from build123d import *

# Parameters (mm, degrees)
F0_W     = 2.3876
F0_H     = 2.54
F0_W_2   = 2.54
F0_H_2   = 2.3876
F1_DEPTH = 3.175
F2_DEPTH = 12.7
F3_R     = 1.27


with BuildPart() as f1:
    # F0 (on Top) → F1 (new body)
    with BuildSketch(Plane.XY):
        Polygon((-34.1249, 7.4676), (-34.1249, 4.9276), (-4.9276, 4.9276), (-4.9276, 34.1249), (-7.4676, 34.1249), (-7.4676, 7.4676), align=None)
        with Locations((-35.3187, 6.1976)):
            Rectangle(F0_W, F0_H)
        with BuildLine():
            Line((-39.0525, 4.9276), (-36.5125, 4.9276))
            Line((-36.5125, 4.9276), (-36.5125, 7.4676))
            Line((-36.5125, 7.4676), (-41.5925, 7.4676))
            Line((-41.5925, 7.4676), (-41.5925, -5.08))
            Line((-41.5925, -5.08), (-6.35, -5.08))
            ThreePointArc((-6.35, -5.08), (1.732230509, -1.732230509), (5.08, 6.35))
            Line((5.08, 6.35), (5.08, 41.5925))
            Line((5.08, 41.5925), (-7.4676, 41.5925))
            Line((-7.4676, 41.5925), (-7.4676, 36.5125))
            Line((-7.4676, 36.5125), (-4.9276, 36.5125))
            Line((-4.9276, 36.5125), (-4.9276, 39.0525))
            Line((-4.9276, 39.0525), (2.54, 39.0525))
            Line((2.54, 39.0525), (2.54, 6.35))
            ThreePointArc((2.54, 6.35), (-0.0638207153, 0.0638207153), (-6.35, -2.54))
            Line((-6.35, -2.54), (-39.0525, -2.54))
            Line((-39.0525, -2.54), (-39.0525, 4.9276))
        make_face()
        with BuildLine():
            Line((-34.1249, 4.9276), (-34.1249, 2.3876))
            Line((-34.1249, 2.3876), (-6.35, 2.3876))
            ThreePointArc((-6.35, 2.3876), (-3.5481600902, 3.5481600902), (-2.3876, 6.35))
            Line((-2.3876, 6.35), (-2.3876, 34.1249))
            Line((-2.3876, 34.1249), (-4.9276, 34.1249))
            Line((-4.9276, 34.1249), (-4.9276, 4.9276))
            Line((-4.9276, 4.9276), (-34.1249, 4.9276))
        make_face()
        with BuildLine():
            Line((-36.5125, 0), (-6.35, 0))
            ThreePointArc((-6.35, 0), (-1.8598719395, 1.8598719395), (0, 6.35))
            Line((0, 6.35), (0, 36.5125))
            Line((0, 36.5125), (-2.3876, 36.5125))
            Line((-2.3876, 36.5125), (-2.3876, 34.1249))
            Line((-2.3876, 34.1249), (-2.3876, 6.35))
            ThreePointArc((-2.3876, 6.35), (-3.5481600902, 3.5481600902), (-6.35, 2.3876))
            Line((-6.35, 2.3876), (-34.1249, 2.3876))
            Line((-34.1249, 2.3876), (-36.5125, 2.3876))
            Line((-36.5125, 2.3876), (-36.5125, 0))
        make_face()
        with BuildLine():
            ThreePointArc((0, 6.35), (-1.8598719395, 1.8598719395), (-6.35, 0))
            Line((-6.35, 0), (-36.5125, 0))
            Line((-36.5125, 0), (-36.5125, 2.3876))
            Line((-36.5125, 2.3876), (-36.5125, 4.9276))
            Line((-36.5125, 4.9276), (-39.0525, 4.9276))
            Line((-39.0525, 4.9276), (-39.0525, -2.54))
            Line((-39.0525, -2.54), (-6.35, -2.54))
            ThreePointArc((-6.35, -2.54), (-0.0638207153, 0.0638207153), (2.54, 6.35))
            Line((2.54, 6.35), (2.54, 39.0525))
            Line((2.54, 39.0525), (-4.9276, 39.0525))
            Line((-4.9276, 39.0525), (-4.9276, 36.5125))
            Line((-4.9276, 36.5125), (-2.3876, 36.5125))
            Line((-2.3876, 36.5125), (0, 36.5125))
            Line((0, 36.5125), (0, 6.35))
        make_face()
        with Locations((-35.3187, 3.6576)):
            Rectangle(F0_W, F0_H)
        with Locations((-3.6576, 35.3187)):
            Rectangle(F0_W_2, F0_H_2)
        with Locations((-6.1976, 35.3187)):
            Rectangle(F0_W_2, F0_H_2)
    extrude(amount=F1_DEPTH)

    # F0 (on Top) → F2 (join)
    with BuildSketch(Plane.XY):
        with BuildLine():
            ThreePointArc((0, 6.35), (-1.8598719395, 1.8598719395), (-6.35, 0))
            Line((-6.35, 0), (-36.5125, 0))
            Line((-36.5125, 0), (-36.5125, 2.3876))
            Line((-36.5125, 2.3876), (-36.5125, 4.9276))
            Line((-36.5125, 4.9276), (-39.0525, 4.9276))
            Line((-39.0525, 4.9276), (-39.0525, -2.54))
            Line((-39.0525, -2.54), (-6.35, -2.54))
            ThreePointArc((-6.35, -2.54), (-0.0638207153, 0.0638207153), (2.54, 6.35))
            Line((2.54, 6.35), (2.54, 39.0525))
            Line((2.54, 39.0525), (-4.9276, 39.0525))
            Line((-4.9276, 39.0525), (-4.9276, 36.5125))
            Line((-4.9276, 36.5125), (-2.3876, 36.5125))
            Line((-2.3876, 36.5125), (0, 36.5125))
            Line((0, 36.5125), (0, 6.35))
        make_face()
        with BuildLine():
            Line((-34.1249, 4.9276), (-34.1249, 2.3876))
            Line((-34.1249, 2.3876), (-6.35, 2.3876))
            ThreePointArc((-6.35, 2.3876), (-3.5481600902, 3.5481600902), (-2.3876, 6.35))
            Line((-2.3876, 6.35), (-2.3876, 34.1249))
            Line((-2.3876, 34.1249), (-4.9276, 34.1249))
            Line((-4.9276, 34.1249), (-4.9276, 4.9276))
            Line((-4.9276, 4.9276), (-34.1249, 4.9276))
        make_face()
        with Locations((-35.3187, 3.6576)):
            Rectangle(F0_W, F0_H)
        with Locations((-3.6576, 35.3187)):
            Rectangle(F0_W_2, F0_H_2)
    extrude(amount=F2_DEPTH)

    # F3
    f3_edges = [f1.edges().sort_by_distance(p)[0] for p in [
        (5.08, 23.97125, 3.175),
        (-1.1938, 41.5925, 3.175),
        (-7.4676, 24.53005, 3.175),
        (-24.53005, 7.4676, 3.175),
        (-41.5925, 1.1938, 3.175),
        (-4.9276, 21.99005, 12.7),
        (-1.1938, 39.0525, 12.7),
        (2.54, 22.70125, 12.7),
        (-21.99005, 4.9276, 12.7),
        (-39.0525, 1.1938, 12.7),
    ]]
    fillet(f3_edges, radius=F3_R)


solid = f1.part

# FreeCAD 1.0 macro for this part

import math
import FreeCAD as App
import Part
import Sketcher

V = App.Vector
Q = App.Units.Quantity


def edges_at(feature, points):
    """Names of the edges that pass closest to the given points."""
    edges = feature.Shape.Edges
    near = lambda p: min(range(len(edges)), key=lambda i: edges[i].distToShape(Part.Vertex(*p))[0])
    return sorted({f"Edge{near(p) + 1}" for p in points})

doc = App.newDocument("Part")
body = doc.addObject("PartDesign::Body", "Body")

# Sketch on XY plane
sketch1 = body.newObject("Sketcher::SketchObject", "Sketch")
sketch1.AttachmentSupport = (doc.getObject("XY_Plane"), [""])
sketch1.MapMode = "FlatFace"
sketch1.addGeometry([
    Part.LineSegment(V(-7, 7, 0), V(-42, 7, 0)),  # 0
    Part.LineSegment(V(-42, 7, 0), V(-42, -5, 0)),  # 1
    Part.LineSegment(V(-42, -5, 0), V(-6, -5, 0)),  # 2
    Part.ArcOfCircle(Part.Circle(V(-6, 6, 0), V(0, 0, 1), 11), math.radians(-90), math.radians(0)),  # 3
    Part.LineSegment(V(5, 6, 0), V(5, 42, 0)),  # 4
    Part.LineSegment(V(5, 42, 0), V(-7, 42, 0)),  # 5
    Part.LineSegment(V(-7, 42, 0), V(-7, 7, 0)),  # 6
], False)
sketch1.addConstraint([
    Sketcher.Constraint("Coincident", 0, 2, 1, 1),
    Sketcher.Constraint("Coincident", 1, 2, 2, 1),
    Sketcher.Constraint("Tangent", 2, 2, 3, 1),
    Sketcher.Constraint("Tangent", 3, 2, 4, 1),
    Sketcher.Constraint("Coincident", 4, 2, 5, 1),
    Sketcher.Constraint("Coincident", 5, 2, 6, 1),
    Sketcher.Constraint("Coincident", 6, 2, 0, 1),
    Sketcher.Constraint("Horizontal", 0),
    Sketcher.Constraint("Vertical", 1),
    Sketcher.Constraint("Horizontal", 2),
    Sketcher.Constraint("Vertical", 4),
    Sketcher.Constraint("Horizontal", 5),
    Sketcher.Constraint("Vertical", 6),
    Sketcher.Constraint("Equal", 5, 1),
    Sketcher.Constraint("Equal", 2, 4),
    Sketcher.Constraint("Radius", 3, Q("0.45 in")),
    Sketcher.Constraint("DistanceY", 1, 2, -1, 1, Q("0.2 in")),
    Sketcher.Constraint("DistanceX", -1, 1, 3, 2, Q("0.2 in")),
    Sketcher.Constraint("DistanceX", 5, 2, 5, 1, Q("0.494 in")),
    Sketcher.Constraint("DistanceX", 0, 2, 0, 1, Q("1.3435 in")),
])
pad1 = body.newObject("PartDesign::Pad", "Pad")
pad1.Profile = sketch1
pad1.Length = Q("0.125 in")

# Sketch on XY plane
sketch2 = body.newObject("Sketcher::SketchObject", "Sketch001")
sketch2.AttachmentSupport = (doc.getObject("XY_Plane"), [""])
sketch2.MapMode = "FlatFace"
sketch2.addGeometry([
    Part.LineSegment(V(-4.9, 4.9, 0), V(-39.1, 4.9, 0)),  # 0
    Part.LineSegment(V(-39.1, 4.9, 0), V(-39.1, -2.5, 0)),  # 1
    Part.LineSegment(V(-39.1, -2.5, 0), V(-6.3, -2.5, 0)),  # 2
    Part.ArcOfCircle(Part.Circle(V(-6.3, 6.3, 0), V(0, 0, 1), 8.9), math.radians(-90), math.radians(0)),  # 3
    Part.LineSegment(V(2.5, 6.3, 0), V(2.5, 39.1, 0)),  # 4
    Part.LineSegment(V(2.5, 39.1, 0), V(-4.9, 39.1, 0)),  # 5
    Part.LineSegment(V(-4.9, 39.1, 0), V(-4.9, 4.9, 0)),  # 6
    Part.ArcOfCircle(Part.Circle(V(-6.3, 6.3, 0), V(0, 0, 1), 6.3), math.radians(-90), math.radians(0)),  # 7
    Part.LineSegment(V(-6.3, 0, 0), V(-36.5, 0, 0)),  # 8
    Part.LineSegment(V(-36.5, 0, 0), V(-36.5, 2.4, 0)),  # 9
    Part.LineSegment(V(-36.5, 2.4, 0), V(-6.3, 2.4, 0)),  # 10
    Part.ArcOfCircle(Part.Circle(V(-6.3, 6.3, 0), V(0, 0, 1), 4), math.radians(-90), math.radians(0)),  # 11
    Part.LineSegment(V(-2.4, 6.3, 0), V(-2.4, 36.5, 0)),  # 12
    Part.LineSegment(V(-2.4, 36.5, 0), V(0, 36.5, 0)),  # 13
    Part.LineSegment(V(0, 36.5, 0), V(0, 6.3, 0)),  # 14
], False)
sketch2.addConstraint([
    Sketcher.Constraint("Coincident", 0, 2, 1, 1),
    Sketcher.Constraint("Coincident", 1, 2, 2, 1),
    Sketcher.Constraint("Tangent", 2, 2, 3, 1),
    Sketcher.Constraint("Tangent", 3, 2, 4, 1),
    Sketcher.Constraint("Coincident", 4, 2, 5, 1),
    Sketcher.Constraint("Coincident", 5, 2, 6, 1),
    Sketcher.Constraint("Coincident", 6, 2, 0, 1),
    Sketcher.Constraint("Tangent", 7, 1, 8, 1),
    Sketcher.Constraint("Coincident", 8, 2, 9, 1),
    Sketcher.Constraint("Coincident", 9, 2, 10, 1),
    Sketcher.Constraint("Tangent", 10, 2, 11, 1),
    Sketcher.Constraint("Tangent", 11, 2, 12, 1),
    Sketcher.Constraint("Coincident", 12, 2, 13, 1),
    Sketcher.Constraint("Coincident", 13, 2, 14, 1),
    Sketcher.Constraint("Tangent", 14, 2, 7, 2),
    Sketcher.Constraint("Horizontal", 0),
    Sketcher.Constraint("Vertical", 1),
    Sketcher.Constraint("Horizontal", 2),
    Sketcher.Constraint("Vertical", 4),
    Sketcher.Constraint("Horizontal", 5),
    Sketcher.Constraint("Vertical", 6),
    Sketcher.Constraint("Horizontal", 8),
    Sketcher.Constraint("Vertical", 9),
    Sketcher.Constraint("Horizontal", 10),
    Sketcher.Constraint("Vertical", 12),
    Sketcher.Constraint("Horizontal", 13),
    Sketcher.Constraint("Vertical", 14),
    Sketcher.Constraint("Coincident", 7, 3, 3, 3),
    Sketcher.Constraint("Coincident", 11, 3, 3, 3),
    Sketcher.Constraint("PointOnObject", 7, 1, -1),
    Sketcher.Constraint("PointOnObject", 13, 2, -2),
    Sketcher.Constraint("Equal", 5, 1),
    Sketcher.Constraint("Equal", 2, 4),
    Sketcher.Constraint("Equal", 10, 12),
    Sketcher.Constraint("Radius", 3, Q("0.35 in")),
    Sketcher.Constraint("Radius", 7, Q("0.25 in")),
    Sketcher.Constraint("Radius", 11, Q("0.156 in")),
    Sketcher.Constraint("DistanceX", 1, 2, 8, 2, Q("0.1 in")),
    Sketcher.Constraint("DistanceY", 9, 2, 0, 2, Q("0.1 in")),
    Sketcher.Constraint("DistanceX", 8, 2, 8, 1, Q("1.1875 in")),
])
pad2 = body.newObject("PartDesign::Pad", "Pad001")
pad2.Profile = sketch2
pad2.Length = Q("0.5 in")
doc.recompute()

fillet = body.newObject("PartDesign::Fillet", "Fillet")
fillet.Base = (pad2, edges_at(pad2, [
    (5.08, 23.971, 3.175),
    (-1.194, 41.593, 3.175),
    (-7.468, 24.53, 3.175),
    (-24.53, 7.468, 3.175),
    (-41.593, 1.194, 3.175),
    (-4.928, 21.99, 12.7),
    (-1.194, 39.053, 12.7),
    (2.54, 22.701, 12.7),
    (-21.99, 4.928, 12.7),
    (-39.053, 1.194, 12.7),
]))
fillet.Radius = Q("0.05 in")

doc.recompute()
